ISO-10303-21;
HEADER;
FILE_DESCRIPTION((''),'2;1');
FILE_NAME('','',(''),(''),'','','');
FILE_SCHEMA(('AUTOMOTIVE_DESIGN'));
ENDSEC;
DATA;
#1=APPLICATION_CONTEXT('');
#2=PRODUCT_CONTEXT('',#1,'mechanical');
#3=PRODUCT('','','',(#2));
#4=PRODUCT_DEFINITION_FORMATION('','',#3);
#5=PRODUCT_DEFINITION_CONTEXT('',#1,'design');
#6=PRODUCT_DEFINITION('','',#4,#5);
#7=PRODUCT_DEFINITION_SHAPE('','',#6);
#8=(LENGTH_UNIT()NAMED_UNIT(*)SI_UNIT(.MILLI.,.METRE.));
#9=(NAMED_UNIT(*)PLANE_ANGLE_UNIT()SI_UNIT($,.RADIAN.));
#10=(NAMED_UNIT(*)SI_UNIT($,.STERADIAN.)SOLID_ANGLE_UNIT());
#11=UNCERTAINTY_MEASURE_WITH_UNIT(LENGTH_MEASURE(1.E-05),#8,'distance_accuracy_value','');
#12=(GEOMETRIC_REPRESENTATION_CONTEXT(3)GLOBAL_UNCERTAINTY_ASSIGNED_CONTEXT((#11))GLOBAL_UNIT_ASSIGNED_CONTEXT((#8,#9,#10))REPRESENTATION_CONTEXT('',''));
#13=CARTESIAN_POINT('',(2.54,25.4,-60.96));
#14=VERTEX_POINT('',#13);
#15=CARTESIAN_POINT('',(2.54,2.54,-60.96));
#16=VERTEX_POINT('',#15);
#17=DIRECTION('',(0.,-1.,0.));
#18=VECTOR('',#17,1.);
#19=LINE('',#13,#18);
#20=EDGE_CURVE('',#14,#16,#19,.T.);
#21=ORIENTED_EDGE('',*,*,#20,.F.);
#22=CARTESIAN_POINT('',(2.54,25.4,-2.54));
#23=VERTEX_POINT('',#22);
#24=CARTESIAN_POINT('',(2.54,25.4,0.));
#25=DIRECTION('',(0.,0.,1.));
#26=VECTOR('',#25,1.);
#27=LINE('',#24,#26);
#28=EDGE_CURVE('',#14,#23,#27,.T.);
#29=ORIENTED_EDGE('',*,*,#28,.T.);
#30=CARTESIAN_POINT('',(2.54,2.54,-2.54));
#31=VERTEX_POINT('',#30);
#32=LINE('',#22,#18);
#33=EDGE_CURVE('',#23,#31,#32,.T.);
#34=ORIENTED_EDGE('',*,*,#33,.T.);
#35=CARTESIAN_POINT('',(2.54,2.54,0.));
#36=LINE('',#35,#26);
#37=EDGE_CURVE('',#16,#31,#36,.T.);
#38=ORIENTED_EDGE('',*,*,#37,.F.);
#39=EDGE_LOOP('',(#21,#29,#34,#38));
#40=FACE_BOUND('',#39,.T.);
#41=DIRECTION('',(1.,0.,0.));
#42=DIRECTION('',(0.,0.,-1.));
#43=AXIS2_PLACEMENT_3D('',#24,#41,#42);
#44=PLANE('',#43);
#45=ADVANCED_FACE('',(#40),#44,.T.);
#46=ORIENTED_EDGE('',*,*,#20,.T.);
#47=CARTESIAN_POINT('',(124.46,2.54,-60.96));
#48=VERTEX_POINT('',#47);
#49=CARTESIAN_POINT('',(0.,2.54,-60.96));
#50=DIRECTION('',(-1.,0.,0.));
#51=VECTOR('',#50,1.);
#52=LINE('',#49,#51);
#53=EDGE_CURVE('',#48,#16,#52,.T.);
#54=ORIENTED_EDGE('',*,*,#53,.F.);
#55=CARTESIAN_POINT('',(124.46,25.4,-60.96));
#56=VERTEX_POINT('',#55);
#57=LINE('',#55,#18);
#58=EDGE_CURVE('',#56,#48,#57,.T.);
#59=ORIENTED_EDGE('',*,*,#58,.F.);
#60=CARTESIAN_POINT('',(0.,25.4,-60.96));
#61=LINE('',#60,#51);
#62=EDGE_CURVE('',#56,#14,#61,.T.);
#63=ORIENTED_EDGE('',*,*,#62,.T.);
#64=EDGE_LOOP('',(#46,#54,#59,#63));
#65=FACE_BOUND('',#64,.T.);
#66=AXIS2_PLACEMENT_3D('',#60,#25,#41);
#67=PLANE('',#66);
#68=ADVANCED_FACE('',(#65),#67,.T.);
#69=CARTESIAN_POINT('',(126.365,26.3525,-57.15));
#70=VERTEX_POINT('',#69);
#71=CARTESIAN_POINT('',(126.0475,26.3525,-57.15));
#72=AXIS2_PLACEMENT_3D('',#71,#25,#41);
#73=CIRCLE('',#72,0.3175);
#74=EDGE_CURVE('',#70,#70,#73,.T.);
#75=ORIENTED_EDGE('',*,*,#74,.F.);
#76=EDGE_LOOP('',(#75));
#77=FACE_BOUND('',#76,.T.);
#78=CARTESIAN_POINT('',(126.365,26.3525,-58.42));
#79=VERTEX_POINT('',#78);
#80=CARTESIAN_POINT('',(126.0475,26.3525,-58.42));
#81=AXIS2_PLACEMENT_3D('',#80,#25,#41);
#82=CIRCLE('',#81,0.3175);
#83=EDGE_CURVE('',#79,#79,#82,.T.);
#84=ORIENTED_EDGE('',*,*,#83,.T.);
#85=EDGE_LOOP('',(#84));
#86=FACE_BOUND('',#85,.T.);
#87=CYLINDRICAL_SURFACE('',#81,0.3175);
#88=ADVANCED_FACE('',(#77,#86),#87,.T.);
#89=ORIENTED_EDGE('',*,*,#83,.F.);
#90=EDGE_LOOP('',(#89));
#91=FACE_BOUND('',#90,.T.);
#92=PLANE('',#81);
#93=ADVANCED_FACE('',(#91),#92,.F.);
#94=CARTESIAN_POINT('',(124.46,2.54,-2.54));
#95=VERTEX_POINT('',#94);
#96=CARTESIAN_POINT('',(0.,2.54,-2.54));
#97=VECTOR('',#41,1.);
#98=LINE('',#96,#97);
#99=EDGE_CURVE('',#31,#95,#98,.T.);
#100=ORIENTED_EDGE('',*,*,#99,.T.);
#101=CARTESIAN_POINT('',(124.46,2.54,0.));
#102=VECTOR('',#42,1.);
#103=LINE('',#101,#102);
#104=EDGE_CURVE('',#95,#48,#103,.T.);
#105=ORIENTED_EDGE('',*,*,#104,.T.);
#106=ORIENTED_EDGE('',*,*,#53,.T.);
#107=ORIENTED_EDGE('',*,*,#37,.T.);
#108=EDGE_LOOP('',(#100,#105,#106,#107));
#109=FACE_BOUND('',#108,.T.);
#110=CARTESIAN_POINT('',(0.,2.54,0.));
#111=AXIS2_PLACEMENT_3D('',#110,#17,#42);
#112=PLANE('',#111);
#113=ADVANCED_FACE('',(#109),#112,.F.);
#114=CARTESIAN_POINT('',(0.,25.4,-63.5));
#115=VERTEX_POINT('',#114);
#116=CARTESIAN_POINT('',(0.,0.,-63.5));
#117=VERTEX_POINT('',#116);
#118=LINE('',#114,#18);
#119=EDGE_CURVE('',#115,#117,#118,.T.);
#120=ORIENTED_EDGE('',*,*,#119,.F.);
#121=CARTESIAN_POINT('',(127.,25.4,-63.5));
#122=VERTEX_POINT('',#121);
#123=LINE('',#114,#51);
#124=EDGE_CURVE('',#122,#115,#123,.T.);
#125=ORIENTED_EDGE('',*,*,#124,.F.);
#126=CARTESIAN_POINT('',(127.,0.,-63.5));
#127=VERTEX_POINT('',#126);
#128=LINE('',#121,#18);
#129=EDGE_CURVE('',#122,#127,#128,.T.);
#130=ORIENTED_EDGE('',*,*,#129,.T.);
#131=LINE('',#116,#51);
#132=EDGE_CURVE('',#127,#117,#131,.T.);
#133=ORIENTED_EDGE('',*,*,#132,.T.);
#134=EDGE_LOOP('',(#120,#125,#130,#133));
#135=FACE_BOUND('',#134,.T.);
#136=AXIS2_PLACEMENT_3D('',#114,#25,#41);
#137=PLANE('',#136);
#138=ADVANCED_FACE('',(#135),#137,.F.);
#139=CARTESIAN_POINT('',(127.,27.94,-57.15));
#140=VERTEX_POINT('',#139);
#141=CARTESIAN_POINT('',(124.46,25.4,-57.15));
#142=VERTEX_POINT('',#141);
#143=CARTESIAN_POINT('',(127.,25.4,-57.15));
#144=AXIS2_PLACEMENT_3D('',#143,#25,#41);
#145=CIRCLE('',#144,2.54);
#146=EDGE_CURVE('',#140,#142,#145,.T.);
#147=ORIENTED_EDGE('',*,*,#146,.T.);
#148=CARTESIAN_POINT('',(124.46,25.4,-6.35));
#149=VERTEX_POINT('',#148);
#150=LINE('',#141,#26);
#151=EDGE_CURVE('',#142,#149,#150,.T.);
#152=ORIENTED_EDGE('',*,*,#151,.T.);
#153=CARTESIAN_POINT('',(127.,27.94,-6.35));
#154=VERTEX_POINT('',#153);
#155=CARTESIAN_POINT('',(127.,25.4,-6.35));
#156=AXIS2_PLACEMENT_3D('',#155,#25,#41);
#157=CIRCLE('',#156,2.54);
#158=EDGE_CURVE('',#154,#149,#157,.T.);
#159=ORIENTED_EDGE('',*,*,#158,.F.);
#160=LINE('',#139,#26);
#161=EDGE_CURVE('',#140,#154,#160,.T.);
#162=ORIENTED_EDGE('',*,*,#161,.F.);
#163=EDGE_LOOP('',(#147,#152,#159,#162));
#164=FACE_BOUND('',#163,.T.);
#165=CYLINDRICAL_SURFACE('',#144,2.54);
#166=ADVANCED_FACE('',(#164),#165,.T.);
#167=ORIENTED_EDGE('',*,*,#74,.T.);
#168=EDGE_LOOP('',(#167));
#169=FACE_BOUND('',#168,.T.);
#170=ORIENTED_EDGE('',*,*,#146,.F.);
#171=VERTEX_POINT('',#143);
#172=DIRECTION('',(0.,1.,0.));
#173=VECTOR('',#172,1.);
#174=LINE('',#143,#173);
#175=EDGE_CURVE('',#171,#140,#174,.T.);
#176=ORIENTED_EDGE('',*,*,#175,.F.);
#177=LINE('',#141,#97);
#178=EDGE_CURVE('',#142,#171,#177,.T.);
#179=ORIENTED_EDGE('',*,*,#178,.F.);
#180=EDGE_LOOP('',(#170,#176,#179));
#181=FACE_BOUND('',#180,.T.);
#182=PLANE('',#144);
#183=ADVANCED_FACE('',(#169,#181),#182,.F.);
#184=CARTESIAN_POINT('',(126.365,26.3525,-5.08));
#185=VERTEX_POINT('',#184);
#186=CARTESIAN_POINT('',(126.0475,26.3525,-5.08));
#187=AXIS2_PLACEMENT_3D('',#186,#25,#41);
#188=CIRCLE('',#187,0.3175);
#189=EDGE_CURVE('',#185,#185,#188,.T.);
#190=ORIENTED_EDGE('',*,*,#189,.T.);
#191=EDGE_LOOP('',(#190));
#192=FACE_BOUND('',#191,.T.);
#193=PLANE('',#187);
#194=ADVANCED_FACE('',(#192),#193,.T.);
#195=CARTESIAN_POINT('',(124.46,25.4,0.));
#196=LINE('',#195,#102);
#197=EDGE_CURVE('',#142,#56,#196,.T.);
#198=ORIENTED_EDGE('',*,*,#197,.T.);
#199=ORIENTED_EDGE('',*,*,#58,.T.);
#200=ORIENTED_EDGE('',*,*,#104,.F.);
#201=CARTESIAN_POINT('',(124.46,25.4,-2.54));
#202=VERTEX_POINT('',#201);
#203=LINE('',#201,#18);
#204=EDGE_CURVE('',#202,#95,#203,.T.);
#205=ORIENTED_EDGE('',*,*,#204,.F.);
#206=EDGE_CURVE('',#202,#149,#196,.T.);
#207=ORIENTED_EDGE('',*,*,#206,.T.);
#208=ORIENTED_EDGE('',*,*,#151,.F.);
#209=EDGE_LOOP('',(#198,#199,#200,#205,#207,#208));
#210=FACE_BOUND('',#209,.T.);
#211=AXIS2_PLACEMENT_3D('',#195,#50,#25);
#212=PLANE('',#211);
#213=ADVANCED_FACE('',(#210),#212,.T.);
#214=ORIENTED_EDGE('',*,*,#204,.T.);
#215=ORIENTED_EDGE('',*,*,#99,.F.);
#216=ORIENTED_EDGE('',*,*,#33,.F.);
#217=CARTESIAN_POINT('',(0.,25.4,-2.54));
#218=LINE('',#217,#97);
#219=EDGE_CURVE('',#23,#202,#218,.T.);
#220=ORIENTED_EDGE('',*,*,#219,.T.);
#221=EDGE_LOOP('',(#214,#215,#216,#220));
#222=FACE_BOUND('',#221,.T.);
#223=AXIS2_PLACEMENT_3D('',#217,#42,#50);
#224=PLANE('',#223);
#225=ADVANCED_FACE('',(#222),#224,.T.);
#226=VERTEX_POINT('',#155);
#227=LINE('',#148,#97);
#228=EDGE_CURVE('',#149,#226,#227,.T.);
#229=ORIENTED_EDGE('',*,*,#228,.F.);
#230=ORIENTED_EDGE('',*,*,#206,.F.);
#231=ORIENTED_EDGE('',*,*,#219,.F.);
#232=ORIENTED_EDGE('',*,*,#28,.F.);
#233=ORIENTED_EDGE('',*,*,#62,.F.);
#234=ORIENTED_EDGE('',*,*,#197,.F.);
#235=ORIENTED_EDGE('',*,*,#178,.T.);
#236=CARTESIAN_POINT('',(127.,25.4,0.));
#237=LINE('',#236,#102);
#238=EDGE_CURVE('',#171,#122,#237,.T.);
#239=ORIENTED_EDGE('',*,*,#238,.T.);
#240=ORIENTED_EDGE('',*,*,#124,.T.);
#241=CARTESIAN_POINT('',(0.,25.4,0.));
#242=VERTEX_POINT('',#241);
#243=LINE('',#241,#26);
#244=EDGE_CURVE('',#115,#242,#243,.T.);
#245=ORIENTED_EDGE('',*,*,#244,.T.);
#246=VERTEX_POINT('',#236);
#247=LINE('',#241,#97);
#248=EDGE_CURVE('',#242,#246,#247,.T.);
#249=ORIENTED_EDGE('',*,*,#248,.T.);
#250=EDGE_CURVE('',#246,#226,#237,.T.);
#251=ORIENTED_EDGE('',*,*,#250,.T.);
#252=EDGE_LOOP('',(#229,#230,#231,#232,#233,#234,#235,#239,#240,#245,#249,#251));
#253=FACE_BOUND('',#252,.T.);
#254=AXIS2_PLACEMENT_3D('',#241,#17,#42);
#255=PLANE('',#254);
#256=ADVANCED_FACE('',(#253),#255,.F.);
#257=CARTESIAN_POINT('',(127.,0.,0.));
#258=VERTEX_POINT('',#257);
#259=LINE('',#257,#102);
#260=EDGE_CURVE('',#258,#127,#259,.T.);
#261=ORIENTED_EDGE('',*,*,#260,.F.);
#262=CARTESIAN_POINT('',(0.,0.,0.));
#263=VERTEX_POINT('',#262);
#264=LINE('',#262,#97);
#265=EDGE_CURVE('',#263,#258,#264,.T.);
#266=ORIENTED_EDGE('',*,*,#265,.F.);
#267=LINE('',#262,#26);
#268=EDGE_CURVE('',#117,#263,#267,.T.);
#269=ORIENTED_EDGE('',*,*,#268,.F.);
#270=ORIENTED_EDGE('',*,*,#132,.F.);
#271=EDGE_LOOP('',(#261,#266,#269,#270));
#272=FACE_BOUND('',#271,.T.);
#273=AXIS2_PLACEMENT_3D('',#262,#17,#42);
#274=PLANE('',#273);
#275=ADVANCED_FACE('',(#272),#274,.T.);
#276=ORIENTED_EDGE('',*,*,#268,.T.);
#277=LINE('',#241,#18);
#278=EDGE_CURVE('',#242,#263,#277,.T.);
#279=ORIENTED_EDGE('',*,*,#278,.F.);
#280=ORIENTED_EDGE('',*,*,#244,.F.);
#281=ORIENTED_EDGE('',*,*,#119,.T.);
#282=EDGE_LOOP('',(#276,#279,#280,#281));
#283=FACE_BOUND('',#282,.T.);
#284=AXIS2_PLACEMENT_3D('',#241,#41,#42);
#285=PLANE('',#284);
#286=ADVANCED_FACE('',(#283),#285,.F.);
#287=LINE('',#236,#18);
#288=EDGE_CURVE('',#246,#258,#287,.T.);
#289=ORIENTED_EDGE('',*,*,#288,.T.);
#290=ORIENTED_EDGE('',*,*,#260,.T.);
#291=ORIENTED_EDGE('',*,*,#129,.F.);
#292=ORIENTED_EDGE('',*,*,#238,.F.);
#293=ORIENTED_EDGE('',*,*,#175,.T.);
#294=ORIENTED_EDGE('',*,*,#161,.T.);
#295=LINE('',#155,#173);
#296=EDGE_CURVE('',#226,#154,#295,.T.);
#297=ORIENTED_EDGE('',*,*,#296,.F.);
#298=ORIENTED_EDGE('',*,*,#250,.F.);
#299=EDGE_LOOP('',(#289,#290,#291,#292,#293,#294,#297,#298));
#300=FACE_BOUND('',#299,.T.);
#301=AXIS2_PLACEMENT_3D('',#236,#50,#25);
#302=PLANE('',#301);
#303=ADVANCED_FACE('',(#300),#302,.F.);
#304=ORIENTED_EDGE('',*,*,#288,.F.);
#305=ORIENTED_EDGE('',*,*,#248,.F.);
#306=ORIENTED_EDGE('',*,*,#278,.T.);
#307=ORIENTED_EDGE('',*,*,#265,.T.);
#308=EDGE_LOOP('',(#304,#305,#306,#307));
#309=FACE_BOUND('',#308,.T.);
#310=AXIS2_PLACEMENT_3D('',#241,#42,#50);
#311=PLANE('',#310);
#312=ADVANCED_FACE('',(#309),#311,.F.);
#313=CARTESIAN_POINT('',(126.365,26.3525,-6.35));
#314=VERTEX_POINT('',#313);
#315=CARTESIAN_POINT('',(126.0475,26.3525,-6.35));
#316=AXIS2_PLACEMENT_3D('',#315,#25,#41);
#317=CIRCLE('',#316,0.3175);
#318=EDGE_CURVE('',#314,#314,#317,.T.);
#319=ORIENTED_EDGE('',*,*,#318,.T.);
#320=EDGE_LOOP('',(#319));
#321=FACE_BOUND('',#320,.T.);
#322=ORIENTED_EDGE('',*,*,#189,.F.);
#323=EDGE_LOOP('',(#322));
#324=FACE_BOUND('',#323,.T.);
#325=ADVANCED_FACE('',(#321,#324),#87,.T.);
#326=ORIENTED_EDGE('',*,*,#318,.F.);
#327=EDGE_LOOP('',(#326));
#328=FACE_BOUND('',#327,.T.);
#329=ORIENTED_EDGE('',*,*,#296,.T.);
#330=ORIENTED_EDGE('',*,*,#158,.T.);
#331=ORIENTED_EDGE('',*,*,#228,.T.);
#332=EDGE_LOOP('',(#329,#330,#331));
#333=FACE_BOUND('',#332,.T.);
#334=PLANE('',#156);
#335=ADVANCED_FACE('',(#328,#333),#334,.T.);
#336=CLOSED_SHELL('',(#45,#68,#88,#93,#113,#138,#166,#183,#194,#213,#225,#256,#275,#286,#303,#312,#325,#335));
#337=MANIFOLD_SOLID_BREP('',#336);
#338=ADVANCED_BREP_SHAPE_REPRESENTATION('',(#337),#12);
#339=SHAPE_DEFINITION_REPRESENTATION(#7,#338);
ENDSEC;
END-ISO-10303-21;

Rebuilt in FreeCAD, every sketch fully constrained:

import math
import FreeCAD as App
import Part
import Sketcher

V = App.Vector
Q = App.Units.Quantity


def faces_at(feature, points):
    """Names of the faces that lie closest to the given points."""
    faces = feature.Shape.Faces
    near = lambda p: min(range(len(faces)), key=lambda i: faces[i].distToShape(Part.Vertex(*p))[0])
    return sorted({f"Face{near(p) + 1}" for p in points})


def add_polygon(sketch, points):
    """Adds a closed chain of lines whose ends are joined by coincident constraints."""
    first, n = sketch.GeometryCount, len(points)
    for a, b in zip(points, points[1:] + points[:1]):
        sketch.addGeometry(Part.LineSegment(App.Vector(*a, 0), App.Vector(*b, 0)), False)
    for i in range(n):
        sketch.addConstraint(Sketcher.Constraint("Coincident", first + i, 2, first + (i + 1) % n, 1))

doc = App.newDocument("Part")
body = doc.addObject("PartDesign::Body", "Body")

sketch1 = body.newObject("Sketcher::SketchObject", "Sketch")
sketch1.AttachmentSupport = (doc.getObject("XZ_Plane"), [""])
sketch1.MapMode = "FlatFace"
add_polygon(sketch1, [(0, -64), (0, 0), (127, 0), (127, -64)])
sketch1.addConstraint([
    Sketcher.Constraint("Vertical", 0),
    Sketcher.Constraint("Horizontal", 1),
    Sketcher.Constraint("Vertical", 2),
    Sketcher.Constraint("Horizontal", 3),
    Sketcher.Constraint("Coincident", 0, 2, -1, 1),
    Sketcher.Constraint("DistanceX", 1, 1, 1, 2, Q("5 in")),
    Sketcher.Constraint("DistanceY", 0, 1, 0, 2, Q("2.5 in")),
])
pad1 = body.newObject("PartDesign::Pad", "Pad")
pad1.Profile = sketch1
pad1.Length = Q("1 in")
pad1.Reversed = True
doc.recompute()

thickness = body.newObject("PartDesign::Thickness", "Thickness")
thickness.Base = (pad1, faces_at(pad1, [(63.5, 25.4, -31.75)]))
thickness.Value = Q("0.1 in")
thickness.Reversed = True
thickness.Join = "Intersection"

sketch2 = body.newObject("Sketcher::SketchObject", "Sketch001")
sketch2.AttachmentSupport = (doc.getObject("XY_Plane"), [""])
sketch2.MapMode = "FlatFace"
sketch2.AttachmentOffset = App.Placement(V(0, 0, -1.25 * 25.4), App.Rotation())
sketch2.addGeometry([
    Part.LineSegment(V(124.5, 25.4, 0), V(127, 25.4, 0)),
    Part.LineSegment(V(127, 25.4, 0), V(127, 27.9, 0)),
    Part.ArcOfCircle(Part.Circle(V(127, 25.4, 0), V(0, 0, 1), 2.5), math.radians(90), math.radians(180)),
], False)
sketch2.addConstraint([
    Sketcher.Constraint("Coincident", 0, 2, 1, 1),
    Sketcher.Constraint("Coincident", 1, 2, 2, 1),
    Sketcher.Constraint("Coincident", 2, 2, 0, 1),
    Sketcher.Constraint("Horizontal", 0),
    Sketcher.Constraint("Vertical", 1),
    Sketcher.Constraint("Coincident", 0, 2, 2, 3),
    Sketcher.Constraint("Radius", 2, Q("0.1 in")),
    Sketcher.Constraint("DistanceX", -1, 1, 2, 3, Q("5 in")),
    Sketcher.Constraint("DistanceY", -1, 1, 2, 3, Q("1 in")),
])
pad2 = body.newObject("PartDesign::Pad", "Pad001")
pad2.Profile = sketch2
pad2.Type = "TwoLengths"
pad2.Length = Q("1 in")
pad2.Length2 = Q("1 in")

sketch3 = body.newObject("Sketcher::SketchObject", "Sketch002")
sketch3.AttachmentSupport = (doc.getObject("XY_Plane"), [""])
sketch3.MapMode = "FlatFace"
sketch3.AttachmentOffset = App.Placement(V(0, 0, -0.25 * 25.4), App.Rotation())
sketch3.addGeometry(Part.Circle(V(126.05, 26.35, 0), V(0, 0, 1), 0.32), False)
sketch3.addConstraint([
    Sketcher.Constraint("Diameter", 0, Q("0.025 in")),
    Sketcher.Constraint("DistanceX", -1, 1, 0, 3, Q("4.9625 in")),
    Sketcher.Constraint("DistanceY", -1, 1, 0, 3, Q("1.0375 in")),
])
pad3 = body.newObject("PartDesign::Pad", "Pad002")
pad3.Profile = sketch3
pad3.Type = "TwoLengths"
pad3.Length = Q("0.05 in")
pad3.Length2 = Q("2.05 in")

doc.recompute()
